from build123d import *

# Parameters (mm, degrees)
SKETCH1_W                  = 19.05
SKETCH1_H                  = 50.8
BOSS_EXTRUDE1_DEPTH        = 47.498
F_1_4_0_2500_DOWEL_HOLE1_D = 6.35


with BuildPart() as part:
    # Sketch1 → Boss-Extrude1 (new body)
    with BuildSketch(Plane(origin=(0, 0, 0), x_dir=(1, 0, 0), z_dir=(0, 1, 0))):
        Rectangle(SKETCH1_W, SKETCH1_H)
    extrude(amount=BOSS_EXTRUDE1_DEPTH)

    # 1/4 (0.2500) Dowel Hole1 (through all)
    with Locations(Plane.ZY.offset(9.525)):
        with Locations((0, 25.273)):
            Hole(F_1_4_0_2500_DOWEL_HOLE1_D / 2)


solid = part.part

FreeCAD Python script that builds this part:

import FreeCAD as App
import Part
import Sketcher

V = App.Vector
Q = App.Units.Quantity

doc = App.newDocument("Part")
body = doc.addObject("PartDesign::Body", "Body")

# Sketch on XZ plane
sketch1 = body.newObject("Sketcher::SketchObject", "Sketch")
sketch1.AttachmentSupport = (doc.getObject("XZ_Plane"), [""])
sketch1.MapMode = "FlatFace"
sketch1.addGeometry([
    Part.LineSegment(V(-10, -25, 0), V(-10, 25, 0)),
    Part.LineSegment(V(-10, 25, 0), V(10, 25, 0)),
    Part.LineSegment(V(10, 25, 0), V(10, -25, 0)),
    Part.LineSegment(V(10, -25, 0), V(-10, -25, 0)),
], False)
sketch1.addConstraint([
    Sketcher.Constraint("Coincident", 0, 2, 1, 1),
    Sketcher.Constraint("Coincident", 1, 2, 2, 1),
    Sketcher.Constraint("Coincident", 2, 2, 3, 1),
    Sketcher.Constraint("Coincident", 3, 2, 0, 1),
    Sketcher.Constraint("Vertical", 0),
    Sketcher.Constraint("Horizontal", 1),
    Sketcher.Constraint("Vertical", 2),
    Sketcher.Constraint("Horizontal", 3),
    Sketcher.Constraint("Symmetric", 0, 2, 2, 2, -1, 1),
    Sketcher.Constraint("DistanceY", 0, 1, 0, 2, Q("2 in")),
    Sketcher.Constraint("DistanceX", 1, 1, 1, 2, Q("0.75 in")),
])
pad1 = body.newObject("PartDesign::Pad", "Pad")
pad1.Profile = sketch1
pad1.Length = Q("1.87 in")
pad1.Reversed = True

# Sketch on YZ plane
sketch2 = body.newObject("Sketcher::SketchObject", "Sketch001")
sketch2.AttachmentSupport = (doc.getObject("YZ_Plane"), [""])
sketch2.MapMode = "FlatFace"
sketch2.AttachmentOffset = App.Placement(V(0, 0, -0.375 * 25.4), App.Rotation())
sketch2.addGeometry(Part.Circle(V(25.3, 0, 0), V(0, 0, 1), 3.2), False)
sketch2.addConstraint([
    Sketcher.Constraint("PointOnObject", 0, 3, -1),
    Sketcher.Constraint("Diameter", 0, Q("0.25 in")),
    Sketcher.Constraint("DistanceX", -1, 1, 0, 3, Q("0.995 in")),
])
doc.recompute()
hole = body.newObject("PartDesign::Hole", "Hole")
hole.Profile = sketch2
hole.ThreadType = "None"
hole.Diameter = Q("0.25 in")
hole.DepthType = "ThroughAll"
hole.Reversed = True

doc.recompute()
